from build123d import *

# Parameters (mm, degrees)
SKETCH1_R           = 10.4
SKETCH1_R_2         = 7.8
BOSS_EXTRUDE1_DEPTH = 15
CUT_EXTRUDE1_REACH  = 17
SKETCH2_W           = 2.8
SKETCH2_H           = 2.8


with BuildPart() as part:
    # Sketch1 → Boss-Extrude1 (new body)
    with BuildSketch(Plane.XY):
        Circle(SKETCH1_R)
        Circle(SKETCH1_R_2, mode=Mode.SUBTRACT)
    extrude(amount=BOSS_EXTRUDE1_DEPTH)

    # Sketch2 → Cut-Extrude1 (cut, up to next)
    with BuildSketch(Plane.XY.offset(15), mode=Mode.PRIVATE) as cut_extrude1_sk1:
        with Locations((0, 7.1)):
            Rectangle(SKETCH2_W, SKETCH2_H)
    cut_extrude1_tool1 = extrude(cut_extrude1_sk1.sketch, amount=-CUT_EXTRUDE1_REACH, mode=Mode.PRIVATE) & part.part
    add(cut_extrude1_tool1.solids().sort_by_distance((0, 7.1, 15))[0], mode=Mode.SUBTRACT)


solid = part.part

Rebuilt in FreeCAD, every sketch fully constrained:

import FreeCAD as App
import Part
import Sketcher
from FreeCAD import Vector

doc = App.newDocument("Part")
params = doc.addObject("Spreadsheet::Sheet", "Params")
for row, (alias, value) in enumerate([
    ("sketch1_diameter", "20.8 mm"),
    ("sketch1_diameter2", "15.6 mm"),
    ("pad1_length", "15 mm"),
    ("sketch2_width", "2.8 mm"),
    ("pocket1_length", "15 mm"),
], start=1):
    params.set(f"A{row}", alias)
    params.set(f"B{row}", "=" + value)
    params.setAlias(f"B{row}", alias)

body = doc.addObject("PartDesign::Body", "Body")

sketch1 = body.newObject("Sketcher::SketchObject", "Sketch")
sketch1.AttachmentSupport = (doc.getObject("XY_Plane"), [""])
sketch1.MapMode = "FlatFace"
sketch1.addGeometry(Part.Circle(Vector(0, 0, 0), Vector(0, 0, 1), 10.4), False)
sketch1.addGeometry(Part.Circle(Vector(0, 0, 0), Vector(0, 0, 1), 7.8), False)
sketch1.addConstraint(Sketcher.Constraint("Coincident", 0, 3, -1, 1))
sketch1.addConstraint(Sketcher.Constraint("Coincident", 1, 3, -1, 1))
sketch1.addConstraint(Sketcher.Constraint("Diameter", 0, 20.8))
sketch1.addConstraint(Sketcher.Constraint("Diameter", 1, 15.6))
sketch1.setExpression("Constraints[2]", "Params.sketch1_diameter")
sketch1.setExpression("Constraints[3]", "Params.sketch1_diameter2")
pad1 = body.newObject("PartDesign::Pad", "Pad")
pad1.Profile = sketch1
pad1.setExpression("Length", "Params.pad1_length")

sketch2 = body.newObject("Sketcher::SketchObject", "Sketch001")
sketch2.AttachmentSupport = (doc.getObject("XY_Plane"), [""])
sketch2.MapMode = "FlatFace"
sketch2.AttachmentOffset = App.Placement(Vector(0, 0, 15), App.Rotation())
sketch2.addGeometry(Part.LineSegment(Vector(-1.4, 8.5, 0), Vector(-1.4, 5.7, 0)), False)
sketch2.addGeometry(Part.LineSegment(Vector(-1.4, 5.7, 0), Vector(1.4, 5.7, 0)), False)
sketch2.addGeometry(Part.LineSegment(Vector(1.4, 5.7, 0), Vector(1.4, 8.5, 0)), False)
sketch2.addGeometry(Part.LineSegment(Vector(1.4, 8.5, 0), Vector(-1.4, 8.5, 0)), False)
sketch2.addConstraint(Sketcher.Constraint("Coincident", 0, 2, 1, 1))
sketch2.addConstraint(Sketcher.Constraint("Coincident", 1, 2, 2, 1))
sketch2.addConstraint(Sketcher.Constraint("Coincident", 2, 2, 3, 1))
sketch2.addConstraint(Sketcher.Constraint("Coincident", 3, 2, 0, 1))
sketch2.addConstraint(Sketcher.Constraint("Vertical", 0))
sketch2.addConstraint(Sketcher.Constraint("Horizontal", 1))
sketch2.addConstraint(Sketcher.Constraint("Vertical", 2))
sketch2.addConstraint(Sketcher.Constraint("Horizontal", 3))
sketch2.addConstraint(Sketcher.Constraint("Equal", 3, 0))
sketch2.addConstraint(Sketcher.Constraint("DistanceX", 1, 1, 1, 2, 2.8))
sketch2.addConstraint(Sketcher.Constraint("DistanceX", 0, 2, -1, 1, 1.4))
sketch2.addConstraint(Sketcher.Constraint("DistanceY", -1, 1, 0, 2, 5.7))
sketch2.setExpression("Constraints[9]", "Params.sketch2_width")
pocket1 = body.newObject("PartDesign::Pocket", "Pocket")
pocket1.Profile = sketch2
pocket1.setExpression("Length", "Params.pocket1_length")

doc.recompute()
